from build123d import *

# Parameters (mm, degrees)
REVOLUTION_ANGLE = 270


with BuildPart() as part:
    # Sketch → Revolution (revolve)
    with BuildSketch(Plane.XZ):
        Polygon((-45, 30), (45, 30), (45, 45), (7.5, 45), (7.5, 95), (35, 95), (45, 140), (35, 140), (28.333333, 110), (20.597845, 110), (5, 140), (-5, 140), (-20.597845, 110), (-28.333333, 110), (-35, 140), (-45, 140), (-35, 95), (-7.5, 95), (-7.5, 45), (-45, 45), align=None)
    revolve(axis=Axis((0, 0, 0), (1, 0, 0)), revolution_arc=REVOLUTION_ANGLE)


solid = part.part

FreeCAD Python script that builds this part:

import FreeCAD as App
import Part
import Sketcher
from FreeCAD import Vector


def add_polygon(sketch, points):
    """Adds a closed chain of lines whose ends are joined by coincident constraints."""
    first, n = sketch.GeometryCount, len(points)
    for a, b in zip(points, points[1:] + points[:1]):
        sketch.addGeometry(Part.LineSegment(App.Vector(*a, 0), App.Vector(*b, 0)), False)
    for i in range(n):
        sketch.addConstraint(Sketcher.Constraint("Coincident", first + i, 2, first + (i + 1) % n, 1))

doc = App.newDocument("Part")
params = doc.addObject("Spreadsheet::Sheet", "Params")
for row, (alias, value) in enumerate([
    ("sketch1_width", "90 mm"),
    ("sketch1_width2", "10 mm"),
    ("sketch1_height", "15 mm"),
    ("sketch1_height2", "50 mm"),
    ("sketch1_width3", "37.5 mm"),
    ("revolution_angle", "270 deg"),
], start=1):
    params.set(f"A{row}", alias)
    params.set(f"B{row}", "=" + value)
    params.setAlias(f"B{row}", alias)

body = doc.addObject("PartDesign::Body", "Body")

# Sketch on XZ plane
sketch1 = body.newObject("Sketcher::SketchObject", "Sketch")
sketch1.AttachmentSupport = (doc.getObject("XZ_Plane"), [""])
sketch1.MapMode = "FlatFace"
add_polygon(sketch1, [(-45, 30), (45, 30), (45, 45), (7.5, 45), (7.5, 95), (35, 95), (45, 140), (35, 140), (28.333333, 110), (20.597845, 110), (5, 140), (-5, 140), (-20.597845, 110), (-28.333333, 110), (-35, 140), (-45, 140), (-35, 95), (-7.5, 95), (-7.5, 45), (-45, 45)])  # lines 0-19
sketch1.addConstraint([
    Sketcher.Constraint("Horizontal", 0),
    Sketcher.Constraint("Vertical", 1),
    Sketcher.Constraint("Horizontal", 2),
    Sketcher.Constraint("Vertical", 3),
    Sketcher.Constraint("Horizontal", 4),
    Sketcher.Constraint("Horizontal", 6),
    Sketcher.Constraint("Horizontal", 8),
    Sketcher.Constraint("Horizontal", 10),
    Sketcher.Constraint("Horizontal", 12),
    Sketcher.Constraint("Horizontal", 14),
    Sketcher.Constraint("Horizontal", 16),
    Sketcher.Constraint("Vertical", 17),
    Sketcher.Constraint("Horizontal", 18),
    Sketcher.Constraint("Vertical", 19),
    Sketcher.Constraint("Symmetric", 8, 2, 11, 2, -2),
    Sketcher.Constraint("Symmetric", 6, 2, 13, 2, -2),
    Sketcher.Constraint("Symmetric", 4, 2, 15, 2, -2),
    Sketcher.Constraint("Symmetric", 2, 2, 17, 2, -2),
    Sketcher.Constraint("Parallel", 5, 7),
    Sketcher.Constraint("Parallel", 13, 15),
    Sketcher.Constraint("Horizontal", 6, 2, 9, 2),
    Sketcher.Constraint("Vertical", 1, 2, 5, 2),
    Sketcher.Constraint("Vertical", 4, 2, 6, 2),
    Sketcher.Constraint("Vertical", 14, 2, 18, 2),
    Sketcher.Constraint("Equal", 6, 10),
    Sketcher.Constraint("Equal", 8, 12),
    Sketcher.Constraint("Equal", 9, 11),
    Sketcher.Constraint("DistanceX", 0, 1, 0, 2, 90.0),
    Sketcher.Constraint("DistanceX", 6, 2, 6, 1, 10.0),
    Sketcher.Constraint("DistanceY", 1, 1, 1, 2, 15.0),
    Sketcher.Constraint("DistanceY", 3, 1, 3, 2, 50.0),
    Sketcher.Constraint("DistanceX", 2, 2, 2, 1, 37.5),
    Sketcher.Constraint("DistanceY", -1, 1, 0, 2, 30.0),
    Sketcher.Constraint("DistanceY", -1, 1, 5, 2, 140.0),
    Sketcher.Constraint("DistanceY", -1, 1, 7, 2, 110.0),
    Sketcher.Constraint("DistanceX", 8, 2, 8, 1, 7.735488),
])
sketch1.setExpression("Constraints[47]", "Params.sketch1_width")
sketch1.setExpression("Constraints[48]", "Params.sketch1_width2")
sketch1.setExpression("Constraints[49]", "Params.sketch1_height")
sketch1.setExpression("Constraints[50]", "Params.sketch1_height2")
sketch1.setExpression("Constraints[51]", "Params.sketch1_width3")
revolution = body.newObject("PartDesign::Revolution", "Revolution")
revolution.Profile = sketch1
revolution.ReferenceAxis = (sketch1, ["H_Axis"])
revolution.setExpression("Angle", "Params.revolution_angle")

doc.recompute()
